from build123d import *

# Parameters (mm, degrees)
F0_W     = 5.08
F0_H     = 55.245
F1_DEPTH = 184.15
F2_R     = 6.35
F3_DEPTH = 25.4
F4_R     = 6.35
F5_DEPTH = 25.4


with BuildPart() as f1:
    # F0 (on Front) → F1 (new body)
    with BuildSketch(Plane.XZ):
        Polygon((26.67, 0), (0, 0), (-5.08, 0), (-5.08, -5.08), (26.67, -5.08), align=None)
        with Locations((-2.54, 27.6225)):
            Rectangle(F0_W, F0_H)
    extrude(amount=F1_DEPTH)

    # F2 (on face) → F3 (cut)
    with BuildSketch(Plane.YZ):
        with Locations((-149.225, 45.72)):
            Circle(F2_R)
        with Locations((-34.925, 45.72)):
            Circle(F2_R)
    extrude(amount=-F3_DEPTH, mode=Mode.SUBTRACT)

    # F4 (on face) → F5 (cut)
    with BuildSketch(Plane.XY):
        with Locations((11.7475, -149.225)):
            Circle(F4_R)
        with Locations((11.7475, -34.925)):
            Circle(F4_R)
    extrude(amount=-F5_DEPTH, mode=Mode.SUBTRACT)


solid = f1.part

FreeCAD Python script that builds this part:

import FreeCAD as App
import Part
import Sketcher
from FreeCAD import Vector
Q = App.Units.Quantity


def add_polygon(sketch, points):
    """Adds a closed chain of lines whose ends are joined by coincident constraints."""
    first, n = sketch.GeometryCount, len(points)
    for a, b in zip(points, points[1:] + points[:1]):
        sketch.addGeometry(Part.LineSegment(App.Vector(*a, 0), App.Vector(*b, 0)), False)
    for i in range(n):
        sketch.addConstraint(Sketcher.Constraint("Coincident", first + i, 2, first + (i + 1) % n, 1))

doc = App.newDocument("Part")
params = doc.addObject("Spreadsheet::Sheet", "Params")
for row, (alias, value) in enumerate([
    ("sketch1_width", "0.2 in"),
    ("sketch1_width2", "1.05 in"),
    ("sketch1_height", "2.175 in"),
    ("pad1_length", "7.25 in"),
    ("sketch2_diameter", "0.5 in"),
    ("pocket1_length", "1 in"),
    ("sketch3_diameter", "0.5 in"),
    ("pocket2_length", "1 in"),
], start=1):
    params.set(f"A{row}", alias)
    params.set(f"B{row}", "=" + value)
    params.setAlias(f"B{row}", alias)

body = doc.addObject("PartDesign::Body", "Body")

sketch1 = body.newObject("Sketcher::SketchObject", "Sketch")
sketch1.AttachmentSupport = (doc.getObject("XZ_Plane"), [""])
sketch1.MapMode = "FlatFace"
add_polygon(sketch1, [(27, 0), (0, 0), (0, 55), (-5, 55), (-5, -5), (27, -5)])
sketch1.addConstraint([
    Sketcher.Constraint("Horizontal", 0),
    Sketcher.Constraint("Vertical", 1),
    Sketcher.Constraint("Horizontal", 2),
    Sketcher.Constraint("Vertical", 3),
    Sketcher.Constraint("Horizontal", 4),
    Sketcher.Constraint("Vertical", 5),
    Sketcher.Constraint("Coincident", 0, 2, -1, 1),
    Sketcher.Constraint("Equal", 2, 5),
    Sketcher.Constraint("DistanceX", 2, 2, 2, 1, Q("0.2 in")),
    Sketcher.Constraint("DistanceX", 0, 2, 0, 1, Q("1.05 in")),
    Sketcher.Constraint("DistanceY", 1, 1, 1, 2, Q("2.175 in")),
])
sketch1.setExpression("Constraints[14]", "Params.sketch1_width")
sketch1.setExpression("Constraints[15]", "Params.sketch1_width2")
sketch1.setExpression("Constraints[16]", "Params.sketch1_height")
pad1 = body.newObject("PartDesign::Pad", "Pad")
pad1.Profile = sketch1
pad1.setExpression("Length", "Params.pad1_length")

sketch2 = body.newObject("Sketcher::SketchObject", "Sketch001")
sketch2.AttachmentSupport = (doc.getObject("YZ_Plane"), [""])
sketch2.MapMode = "FlatFace"
sketch2.addGeometry([
    Part.Circle(Vector(-149, 46, 0), Vector(0, 0, 1), 6),
    Part.Circle(Vector(-35, 46, 0), Vector(0, 0, 1), 6),
], False)
sketch2.addConstraint([
    Sketcher.Constraint("Equal", 0, 1),
    Sketcher.Constraint("Horizontal", 0, 3, 1, 3),
    Sketcher.Constraint("Diameter", 0, Q("0.5 in")),
    Sketcher.Constraint("DistanceY", -1, 1, 0, 3, Q("1.8 in")),
    Sketcher.Constraint("DistanceX", 0, 3, 1, 3, Q("4.5 in")),
    Sketcher.Constraint("DistanceX", 0, 3, -1, 1, Q("5.875 in")),
])
sketch2.setExpression("Constraints[2]", "Params.sketch2_diameter")
pocket1 = body.newObject("PartDesign::Pocket", "Pocket")
pocket1.Profile = sketch2
pocket1.setExpression("Length", "Params.pocket1_length")

sketch3 = body.newObject("Sketcher::SketchObject", "Sketch002")
sketch3.AttachmentSupport = (doc.getObject("XY_Plane"), [""])
sketch3.MapMode = "FlatFace"
sketch3.addGeometry([
    Part.Circle(Vector(12, -149, 0), Vector(0, 0, 1), 6),
    Part.Circle(Vector(12, -35, 0), Vector(0, 0, 1), 6),
], False)
sketch3.addConstraint([
    Sketcher.Constraint("Equal", 0, 1),
    Sketcher.Constraint("Vertical", 0, 3, 1, 3),
    Sketcher.Constraint("Diameter", 0, Q("0.5 in")),
    Sketcher.Constraint("DistanceY", 0, 3, 1, 3, Q("4.5 in")),
    Sketcher.Constraint("DistanceY", 0, 3, -1, 1, Q("5.875 in")),
    Sketcher.Constraint("DistanceX", -1, 1, 0, 3, Q("0.4625 in")),
])
sketch3.setExpression("Constraints[2]", "Params.sketch3_diameter")
pocket2 = body.newObject("PartDesign::Pocket", "Pocket001")
pocket2.Profile = sketch3
pocket2.setExpression("Length", "Params.pocket2_length")

doc.recompute()
